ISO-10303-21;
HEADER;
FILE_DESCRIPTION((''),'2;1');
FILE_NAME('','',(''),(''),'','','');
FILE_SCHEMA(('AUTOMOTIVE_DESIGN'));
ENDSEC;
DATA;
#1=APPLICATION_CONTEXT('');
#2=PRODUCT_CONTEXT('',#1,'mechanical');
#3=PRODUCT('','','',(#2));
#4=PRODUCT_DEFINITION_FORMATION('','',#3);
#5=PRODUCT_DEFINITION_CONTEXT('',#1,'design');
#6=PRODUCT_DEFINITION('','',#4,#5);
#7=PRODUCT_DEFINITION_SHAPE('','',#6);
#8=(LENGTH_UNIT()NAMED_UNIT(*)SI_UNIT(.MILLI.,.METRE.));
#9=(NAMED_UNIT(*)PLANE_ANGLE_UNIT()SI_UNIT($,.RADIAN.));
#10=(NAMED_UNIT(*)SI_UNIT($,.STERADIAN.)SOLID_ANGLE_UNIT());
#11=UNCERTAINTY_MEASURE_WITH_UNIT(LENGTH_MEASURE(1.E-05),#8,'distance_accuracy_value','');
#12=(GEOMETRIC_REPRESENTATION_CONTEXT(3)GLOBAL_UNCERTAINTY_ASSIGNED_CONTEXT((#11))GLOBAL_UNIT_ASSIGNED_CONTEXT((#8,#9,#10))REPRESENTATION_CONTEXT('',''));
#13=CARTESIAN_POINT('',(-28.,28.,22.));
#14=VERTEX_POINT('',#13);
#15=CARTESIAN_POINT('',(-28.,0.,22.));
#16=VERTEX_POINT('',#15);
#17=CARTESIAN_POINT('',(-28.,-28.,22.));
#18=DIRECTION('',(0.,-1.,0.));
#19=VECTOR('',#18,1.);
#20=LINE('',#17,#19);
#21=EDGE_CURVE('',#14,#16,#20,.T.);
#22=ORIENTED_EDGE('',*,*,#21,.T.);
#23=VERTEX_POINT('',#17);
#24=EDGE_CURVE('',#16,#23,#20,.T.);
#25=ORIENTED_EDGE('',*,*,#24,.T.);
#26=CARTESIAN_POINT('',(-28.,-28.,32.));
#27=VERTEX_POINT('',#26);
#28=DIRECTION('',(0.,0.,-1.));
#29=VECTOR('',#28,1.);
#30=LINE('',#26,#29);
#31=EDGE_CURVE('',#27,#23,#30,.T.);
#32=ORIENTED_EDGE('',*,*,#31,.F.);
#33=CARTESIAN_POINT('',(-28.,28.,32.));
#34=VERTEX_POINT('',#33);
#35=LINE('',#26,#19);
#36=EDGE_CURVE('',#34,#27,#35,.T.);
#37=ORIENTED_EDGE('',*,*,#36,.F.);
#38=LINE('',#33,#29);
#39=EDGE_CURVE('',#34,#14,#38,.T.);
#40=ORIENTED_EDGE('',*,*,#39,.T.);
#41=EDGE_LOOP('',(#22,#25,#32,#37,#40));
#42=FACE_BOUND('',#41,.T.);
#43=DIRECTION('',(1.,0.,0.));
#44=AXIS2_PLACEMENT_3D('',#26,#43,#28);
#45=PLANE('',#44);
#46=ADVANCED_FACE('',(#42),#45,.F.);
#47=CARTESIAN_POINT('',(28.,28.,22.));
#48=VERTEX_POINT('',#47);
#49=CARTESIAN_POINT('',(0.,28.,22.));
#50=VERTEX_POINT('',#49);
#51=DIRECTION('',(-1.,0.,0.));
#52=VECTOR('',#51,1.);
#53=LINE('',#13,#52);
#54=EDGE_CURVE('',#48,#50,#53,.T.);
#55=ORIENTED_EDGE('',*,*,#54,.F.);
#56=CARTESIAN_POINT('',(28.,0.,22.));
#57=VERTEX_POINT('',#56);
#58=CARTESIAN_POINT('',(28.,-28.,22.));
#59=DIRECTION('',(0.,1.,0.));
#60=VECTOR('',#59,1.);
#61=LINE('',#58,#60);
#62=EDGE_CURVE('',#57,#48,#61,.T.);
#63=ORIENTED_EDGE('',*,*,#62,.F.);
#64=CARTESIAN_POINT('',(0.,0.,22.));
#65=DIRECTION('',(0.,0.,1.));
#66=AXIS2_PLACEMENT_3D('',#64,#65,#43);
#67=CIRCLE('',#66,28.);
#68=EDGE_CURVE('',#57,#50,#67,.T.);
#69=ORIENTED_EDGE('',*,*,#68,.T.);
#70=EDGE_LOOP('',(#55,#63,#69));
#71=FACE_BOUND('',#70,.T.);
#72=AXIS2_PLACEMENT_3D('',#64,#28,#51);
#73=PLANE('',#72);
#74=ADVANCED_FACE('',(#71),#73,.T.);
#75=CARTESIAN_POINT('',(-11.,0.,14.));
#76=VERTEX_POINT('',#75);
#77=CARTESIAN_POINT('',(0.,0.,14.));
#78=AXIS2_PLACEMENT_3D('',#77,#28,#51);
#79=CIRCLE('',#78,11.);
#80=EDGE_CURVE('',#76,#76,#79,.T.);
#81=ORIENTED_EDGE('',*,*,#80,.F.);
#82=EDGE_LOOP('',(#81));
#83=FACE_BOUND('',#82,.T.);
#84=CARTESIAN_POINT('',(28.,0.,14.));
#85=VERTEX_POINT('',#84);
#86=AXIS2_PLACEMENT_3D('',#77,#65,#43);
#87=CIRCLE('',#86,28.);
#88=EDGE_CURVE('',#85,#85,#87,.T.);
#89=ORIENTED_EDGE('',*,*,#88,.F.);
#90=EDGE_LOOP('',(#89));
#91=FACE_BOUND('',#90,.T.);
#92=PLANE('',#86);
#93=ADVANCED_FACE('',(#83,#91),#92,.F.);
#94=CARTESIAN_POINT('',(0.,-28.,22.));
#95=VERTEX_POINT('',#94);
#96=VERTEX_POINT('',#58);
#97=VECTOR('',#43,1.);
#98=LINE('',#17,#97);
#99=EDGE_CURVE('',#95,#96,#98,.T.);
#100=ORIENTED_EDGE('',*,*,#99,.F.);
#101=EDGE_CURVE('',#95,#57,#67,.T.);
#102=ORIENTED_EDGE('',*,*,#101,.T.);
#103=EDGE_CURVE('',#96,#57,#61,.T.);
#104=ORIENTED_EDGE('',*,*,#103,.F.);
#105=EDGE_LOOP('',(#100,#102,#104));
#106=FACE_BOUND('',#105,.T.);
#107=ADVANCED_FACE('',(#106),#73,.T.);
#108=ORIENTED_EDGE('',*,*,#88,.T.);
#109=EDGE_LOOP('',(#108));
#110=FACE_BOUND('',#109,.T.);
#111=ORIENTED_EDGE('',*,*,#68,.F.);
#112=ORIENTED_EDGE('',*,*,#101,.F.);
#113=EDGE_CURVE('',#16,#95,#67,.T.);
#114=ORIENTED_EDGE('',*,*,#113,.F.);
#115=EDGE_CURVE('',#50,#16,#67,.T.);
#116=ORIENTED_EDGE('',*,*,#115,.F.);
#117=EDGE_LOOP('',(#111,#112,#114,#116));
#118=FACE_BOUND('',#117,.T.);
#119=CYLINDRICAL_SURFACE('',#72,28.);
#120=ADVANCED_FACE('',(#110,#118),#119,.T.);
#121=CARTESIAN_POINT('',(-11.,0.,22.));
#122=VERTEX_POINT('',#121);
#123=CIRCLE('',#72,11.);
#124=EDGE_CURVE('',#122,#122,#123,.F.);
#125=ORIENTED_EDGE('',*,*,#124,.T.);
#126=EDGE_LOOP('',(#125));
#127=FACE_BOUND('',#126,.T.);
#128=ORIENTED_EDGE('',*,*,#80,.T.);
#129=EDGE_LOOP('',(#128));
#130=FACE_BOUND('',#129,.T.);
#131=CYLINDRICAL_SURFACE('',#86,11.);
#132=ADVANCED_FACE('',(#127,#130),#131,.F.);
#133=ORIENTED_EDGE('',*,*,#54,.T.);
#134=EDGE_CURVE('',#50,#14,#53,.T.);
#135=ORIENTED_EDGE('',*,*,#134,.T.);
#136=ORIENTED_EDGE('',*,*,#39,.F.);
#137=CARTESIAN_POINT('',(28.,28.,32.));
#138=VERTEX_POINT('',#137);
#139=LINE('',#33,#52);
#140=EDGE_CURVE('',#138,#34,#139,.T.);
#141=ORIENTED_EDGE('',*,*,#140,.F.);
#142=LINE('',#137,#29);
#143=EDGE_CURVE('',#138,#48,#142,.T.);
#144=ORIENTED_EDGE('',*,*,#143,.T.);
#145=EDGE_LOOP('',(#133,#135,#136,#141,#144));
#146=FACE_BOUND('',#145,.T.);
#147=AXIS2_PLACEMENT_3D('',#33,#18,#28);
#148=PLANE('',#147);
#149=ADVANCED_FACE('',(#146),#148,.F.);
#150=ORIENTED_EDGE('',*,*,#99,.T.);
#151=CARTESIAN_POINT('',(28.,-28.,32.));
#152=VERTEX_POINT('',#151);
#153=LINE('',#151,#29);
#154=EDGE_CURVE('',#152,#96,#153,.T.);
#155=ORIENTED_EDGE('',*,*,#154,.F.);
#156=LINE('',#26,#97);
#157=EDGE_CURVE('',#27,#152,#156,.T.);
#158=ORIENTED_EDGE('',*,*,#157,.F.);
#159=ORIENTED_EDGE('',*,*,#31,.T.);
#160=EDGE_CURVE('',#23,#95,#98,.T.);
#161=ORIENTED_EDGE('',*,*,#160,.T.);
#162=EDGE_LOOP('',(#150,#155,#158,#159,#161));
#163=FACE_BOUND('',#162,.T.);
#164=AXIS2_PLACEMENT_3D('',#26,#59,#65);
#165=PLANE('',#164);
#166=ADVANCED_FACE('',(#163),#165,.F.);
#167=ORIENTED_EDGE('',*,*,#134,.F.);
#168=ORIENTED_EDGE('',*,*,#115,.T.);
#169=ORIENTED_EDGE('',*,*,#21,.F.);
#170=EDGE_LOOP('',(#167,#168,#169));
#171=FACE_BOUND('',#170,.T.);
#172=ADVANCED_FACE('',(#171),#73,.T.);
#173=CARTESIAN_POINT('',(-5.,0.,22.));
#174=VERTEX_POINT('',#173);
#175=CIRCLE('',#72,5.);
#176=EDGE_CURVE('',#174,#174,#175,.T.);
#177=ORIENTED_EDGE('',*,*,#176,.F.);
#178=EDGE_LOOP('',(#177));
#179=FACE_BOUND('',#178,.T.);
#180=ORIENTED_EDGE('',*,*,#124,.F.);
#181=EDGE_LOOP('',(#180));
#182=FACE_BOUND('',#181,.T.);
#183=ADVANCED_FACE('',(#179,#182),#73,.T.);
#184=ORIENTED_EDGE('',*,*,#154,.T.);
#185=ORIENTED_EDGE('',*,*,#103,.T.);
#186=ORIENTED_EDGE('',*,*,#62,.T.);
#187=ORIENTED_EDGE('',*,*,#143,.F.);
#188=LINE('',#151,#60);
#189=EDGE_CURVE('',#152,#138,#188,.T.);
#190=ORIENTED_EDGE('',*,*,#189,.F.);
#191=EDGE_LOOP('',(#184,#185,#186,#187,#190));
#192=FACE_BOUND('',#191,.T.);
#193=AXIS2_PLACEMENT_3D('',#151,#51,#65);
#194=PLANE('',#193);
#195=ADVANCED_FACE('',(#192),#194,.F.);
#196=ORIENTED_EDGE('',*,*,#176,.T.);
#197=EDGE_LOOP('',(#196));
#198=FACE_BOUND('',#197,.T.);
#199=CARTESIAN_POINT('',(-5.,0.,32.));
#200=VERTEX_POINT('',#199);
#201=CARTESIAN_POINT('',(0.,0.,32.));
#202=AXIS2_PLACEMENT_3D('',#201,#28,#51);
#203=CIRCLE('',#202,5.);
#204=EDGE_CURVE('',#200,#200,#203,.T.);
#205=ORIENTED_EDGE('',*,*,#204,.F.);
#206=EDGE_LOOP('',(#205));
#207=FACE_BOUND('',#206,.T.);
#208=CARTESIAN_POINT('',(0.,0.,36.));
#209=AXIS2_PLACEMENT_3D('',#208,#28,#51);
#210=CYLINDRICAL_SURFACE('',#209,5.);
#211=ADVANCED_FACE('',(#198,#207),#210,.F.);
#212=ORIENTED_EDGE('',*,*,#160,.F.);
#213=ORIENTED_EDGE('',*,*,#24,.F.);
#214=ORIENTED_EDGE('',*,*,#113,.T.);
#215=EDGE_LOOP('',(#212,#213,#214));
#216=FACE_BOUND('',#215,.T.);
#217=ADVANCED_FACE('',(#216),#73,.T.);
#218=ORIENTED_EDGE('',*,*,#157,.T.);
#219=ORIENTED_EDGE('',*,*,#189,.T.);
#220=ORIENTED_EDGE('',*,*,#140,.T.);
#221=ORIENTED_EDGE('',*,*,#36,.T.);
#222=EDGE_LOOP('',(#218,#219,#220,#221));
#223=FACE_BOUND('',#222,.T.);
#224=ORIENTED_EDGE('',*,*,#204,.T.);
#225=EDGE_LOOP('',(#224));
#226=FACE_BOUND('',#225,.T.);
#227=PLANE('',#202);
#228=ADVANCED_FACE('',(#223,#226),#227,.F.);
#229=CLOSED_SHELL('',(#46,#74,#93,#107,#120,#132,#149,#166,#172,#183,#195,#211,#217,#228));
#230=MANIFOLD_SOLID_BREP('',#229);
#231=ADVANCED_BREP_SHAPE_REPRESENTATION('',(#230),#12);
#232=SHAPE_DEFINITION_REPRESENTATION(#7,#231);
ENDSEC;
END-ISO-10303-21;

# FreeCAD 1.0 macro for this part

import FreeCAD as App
import Part
import Sketcher
from FreeCAD import Vector


def add_polygon(sketch, points):
    """Adds a closed chain of lines whose ends are joined by coincident constraints."""
    first, n = sketch.GeometryCount, len(points)
    for a, b in zip(points, points[1:] + points[:1]):
        sketch.addGeometry(Part.LineSegment(App.Vector(*a, 0), App.Vector(*b, 0)), False)
    for i in range(n):
        sketch.addConstraint(Sketcher.Constraint("Coincident", first + i, 2, first + (i + 1) % n, 1))

doc = App.newDocument("Part")
body = doc.addObject("PartDesign::Body", "Body")

sketch1 = body.newObject("Sketcher::SketchObject", "Sketch")
sketch1.AttachmentSupport = (doc.getObject("XY_Plane"), [""])
sketch1.MapMode = "FlatFace"
sketch1.addGeometry([
    Part.Circle(Vector(0, 0, 0), Vector(0, 0, 1), 28),
    Part.Circle(Vector(0, 0, 0), Vector(0, 0, 1), 18),
], False)
sketch1.addConstraint([
    Sketcher.Constraint("Coincident", 0, 3, -1, 1),
    Sketcher.Constraint("Coincident", 1, 3, -1, 1),
    Sketcher.Constraint("Diameter", 0, 56.0),
    Sketcher.Constraint("Diameter", 1, 36.0),
])
pad1 = body.newObject("PartDesign::Pad", "Pad")
pad1.Profile = sketch1
pad1.Length = 22

sketch2 = body.newObject("Sketcher::SketchObject", "Sketch001")
sketch2.AttachmentSupport = (doc.getObject("XY_Plane"), [""])
sketch2.MapMode = "FlatFace"
sketch2.AttachmentOffset = App.Placement(Vector(0, 0, 22), App.Rotation())
add_polygon(sketch2, [(-28, 28), (-28, -28), (28, -28), (28, 28)])
sketch2.addConstraint([
    Sketcher.Constraint("Vertical", 0),
    Sketcher.Constraint("Horizontal", 1),
    Sketcher.Constraint("Vertical", 2),
    Sketcher.Constraint("Horizontal", 3),
    Sketcher.Constraint("Symmetric", 0, 2, 2, 2, -1, 1),
    Sketcher.Constraint("Equal", 3, 0),
    Sketcher.Constraint("DistanceX", 1, 1, 1, 2, 56.0),
])
pad2 = body.newObject("PartDesign::Pad", "Pad001")
pad2.Profile = sketch2
pad2.Length = 10

sketch3 = body.newObject("Sketcher::SketchObject", "Sketch002")
sketch3.AttachmentSupport = (doc.getObject("XY_Plane"), [""])
sketch3.MapMode = "FlatFace"
add_polygon(sketch3, [(28, 32.095759), (28, -28), (-28, -28), (-28, 32.095759)])
sketch3.addConstraint([
    Sketcher.Constraint("Vertical", 0),
    Sketcher.Constraint("Horizontal", 1),
    Sketcher.Constraint("Vertical", 2),
    Sketcher.Constraint("Horizontal", 3),
    Sketcher.Constraint("DistanceX", 1, 2, 1, 1, 56.0),
    Sketcher.Constraint("DistanceX", -1, 1, 0, 2, 28.0),
    Sketcher.Constraint("DistanceY", 0, 2, -1, 1, 28.0),
    Sketcher.Constraint("DistanceY", 0, 2, 0, 1, 60.095759),
])
pocket1 = body.newObject("PartDesign::Pocket", "Pocket")
pocket1.Profile = sketch3
pocket1.Length = 14
pocket1.Reversed = True

sketch4 = body.newObject("Sketcher::SketchObject", "Sketch003")
sketch4.AttachmentSupport = (doc.getObject("XY_Plane"), [""])
sketch4.MapMode = "FlatFace"
sketch4.AttachmentOffset = App.Placement(Vector(0, 0, 22), App.Rotation())
sketch4.addGeometry(Part.Circle(Vector(0, 0, 0), Vector(0, 0, 1), 5), False)
sketch4.addConstraint([
    Sketcher.Constraint("Coincident", 0, 3, -1, 1),
    Sketcher.Constraint("Diameter", 0, 10.0),
])
pocket2 = body.newObject("PartDesign::Pocket", "Pocket001")
pocket2.Profile = sketch4
pocket2.Length = 14
pocket2.Reversed = True

sketch5 = body.newObject("Sketcher::SketchObject", "Sketch004")
sketch5.AttachmentSupport = (doc.getObject("XY_Plane"), [""])
sketch5.MapMode = "FlatFace"
sketch5.AttachmentOffset = App.Placement(Vector(0, 0, 22), App.Rotation())
sketch5.addGeometry([
    Part.Circle(Vector(0, 0, 0), Vector(0, 0, 1), 21.225012),
    Part.Circle(Vector(0, 0, 0), Vector(0, 0, 1), 11),
], False)
sketch5.addConstraint([
    Sketcher.Constraint("Coincident", 0, 3, -1, 1),
    Sketcher.Constraint("Coincident", 1, 3, -1, 1),
    Sketcher.Constraint("Diameter", 1, 22.0),
    Sketcher.Constraint("Diameter", 0, 42.450025),
])
pad3 = body.newObject("PartDesign::Pad", "Pad002")
pad3.Profile = sketch5
pad3.Length = 8
pad3.Reversed = True

doc.recompute()
